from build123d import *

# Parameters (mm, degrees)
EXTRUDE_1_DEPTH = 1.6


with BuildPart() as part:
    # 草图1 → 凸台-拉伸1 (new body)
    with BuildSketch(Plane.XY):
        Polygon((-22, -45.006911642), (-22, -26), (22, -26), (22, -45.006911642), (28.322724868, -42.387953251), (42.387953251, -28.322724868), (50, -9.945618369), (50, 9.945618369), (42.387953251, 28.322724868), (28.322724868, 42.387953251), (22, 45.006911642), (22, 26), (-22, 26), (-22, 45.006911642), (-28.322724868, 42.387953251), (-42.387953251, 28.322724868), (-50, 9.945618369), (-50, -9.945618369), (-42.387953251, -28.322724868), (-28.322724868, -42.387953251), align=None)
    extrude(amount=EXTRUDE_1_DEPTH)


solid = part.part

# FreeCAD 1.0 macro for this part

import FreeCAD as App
import Part
import Sketcher

V = App.Vector
Q = App.Units.Quantity


def add_polygon(sketch, points):
    """Adds a closed chain of lines whose ends are joined by coincident constraints."""
    first, n = sketch.GeometryCount, len(points)
    for a, b in zip(points, points[1:] + points[:1]):
        sketch.addGeometry(Part.LineSegment(App.Vector(*a, 0), App.Vector(*b, 0)), False)
    for i in range(n):
        sketch.addConstraint(Sketcher.Constraint("Coincident", first + i, 2, first + (i + 1) % n, 1))

doc = App.newDocument("Part")
body = doc.addObject("PartDesign::Body", "Body")

sketch1 = body.newObject("Sketcher::SketchObject", "Sketch")
sketch1.AttachmentSupport = (doc.getObject("XY_Plane"), [""])
sketch1.MapMode = "FlatFace"
add_polygon(sketch1, [(-22, -45.006912), (-22, -26), (22, -26), (22, -45.006912), (28.322725, -42.387953), (42.387953, -28.322725), (50, -9.945618), (50, 9.945618), (42.387953, 28.322725), (28.322725, 42.387953), (22, 45.006912), (22, 26), (-22, 26), (-22, 45.006912), (-28.322725, 42.387953), (-42.387953, 28.322725), (-50, 9.945618), (-50, -9.945618), (-42.387953, -28.322725), (-28.322725, -42.387953)])
sketch1.addConstraint([
    Sketcher.Constraint("Vertical", 0),
    Sketcher.Constraint("Horizontal", 1),
    Sketcher.Constraint("Vertical", 2),
    Sketcher.Constraint("Vertical", 6),
    Sketcher.Constraint("Vertical", 10),
    Sketcher.Constraint("Horizontal", 11),
    Sketcher.Constraint("Vertical", 12),
    Sketcher.Constraint("Vertical", 16),
    Sketcher.Constraint("Symmetric", 0, 2, 10, 2, -1, 1),
    Sketcher.Constraint("Symmetric", 2, 2, 12, 2, -1, 1),
    Sketcher.Constraint("Symmetric", 3, 2, 13, 2, -1, 1),
    Sketcher.Constraint("Symmetric", 4, 2, 14, 2, -1, 1),
    Sketcher.Constraint("Symmetric", 5, 2, 15, 2, -1, 1),
    Sketcher.Constraint("Symmetric", 7, 2, 17, 2, -1, 1),
    Sketcher.Constraint("Symmetric", 8, 2, 18, 2, -1, 1),
    Sketcher.Constraint("Symmetric", 9, 2, 12, 2, -2),
    Sketcher.Constraint("Symmetric", 8, 2, 13, 2, -2),
    Sketcher.Constraint("Symmetric", 7, 2, 14, 2, -2),
    Sketcher.Constraint("Perpendicular", 3, 7),
    Sketcher.Constraint("Perpendicular", 4, 8),
    Sketcher.Constraint("Perpendicular", 5, 9),
    Sketcher.Constraint("Perpendicular", 13, 17),
    Sketcher.Constraint("Perpendicular", 15, 19),
    Sketcher.Constraint("Equal", 4, 5),
    Sketcher.Constraint("DistanceX", 1, 1, 1, 2, Q("44 mm")),
    Sketcher.Constraint("DistanceY", 0, 2, -1, 1, Q("26 mm")),
    Sketcher.Constraint("DistanceX", -1, 1, 5, 2, Q("50 mm")),
    Sketcher.Constraint("Angle", 3, Q("22.5 deg")),
    Sketcher.Constraint("DistanceY", 0, 1, 0, 2, Q("19.006912 mm")),
    Sketcher.Constraint("Distance", 3, Q("6.843668 mm")),
])
pad1 = body.newObject("PartDesign::Pad", "Pad")
pad1.Profile = sketch1
pad1.Length = 1.6

doc.recompute()
